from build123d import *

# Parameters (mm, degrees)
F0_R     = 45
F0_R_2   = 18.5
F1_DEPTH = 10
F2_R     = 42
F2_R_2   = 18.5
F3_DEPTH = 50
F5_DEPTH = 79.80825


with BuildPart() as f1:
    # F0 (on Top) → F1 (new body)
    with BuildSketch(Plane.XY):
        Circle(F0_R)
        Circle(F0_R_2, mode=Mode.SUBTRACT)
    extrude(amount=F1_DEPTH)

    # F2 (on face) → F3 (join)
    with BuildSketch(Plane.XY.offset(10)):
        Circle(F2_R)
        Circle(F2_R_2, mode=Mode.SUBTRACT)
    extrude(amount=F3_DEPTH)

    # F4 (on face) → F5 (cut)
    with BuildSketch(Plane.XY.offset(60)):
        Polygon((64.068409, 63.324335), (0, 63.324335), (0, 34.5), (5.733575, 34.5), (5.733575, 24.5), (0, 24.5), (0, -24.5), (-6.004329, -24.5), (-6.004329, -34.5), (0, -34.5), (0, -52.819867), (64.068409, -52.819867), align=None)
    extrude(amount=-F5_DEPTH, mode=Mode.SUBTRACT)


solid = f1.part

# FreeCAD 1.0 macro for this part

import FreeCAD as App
import Part
import Sketcher
Q = App.Units.Quantity


def add_polygon(sketch, points):
    """Adds a closed chain of lines whose ends are joined by coincident constraints."""
    first, n = sketch.GeometryCount, len(points)
    for a, b in zip(points, points[1:] + points[:1]):
        sketch.addGeometry(Part.LineSegment(App.Vector(*a, 0), App.Vector(*b, 0)), False)
    for i in range(n):
        sketch.addConstraint(Sketcher.Constraint("Coincident", first + i, 2, first + (i + 1) % n, 1))

doc = App.newDocument("Part")
params = doc.addObject("Spreadsheet::Sheet", "Params")
for row, (alias, value) in enumerate([
    ("sketch1_diameter", "90 mm"),
    ("sketch1_diameter2", "37 mm"),
    ("pad1_length", "10 mm"),
    ("sketch2_diameter", "84 mm"),
    ("sketch2_diameter2", "37 mm"),
    ("pad2_length", "50 mm"),
    ("sketch3_height", "10 mm"),
    ("sketch3_height2", "49 mm"),
    ("pocket1_length", "79.80825 mm"),
], start=1):
    params.set(f"A{row}", alias)
    params.set(f"B{row}", "=" + value)
    params.setAlias(f"B{row}", alias)

body = doc.addObject("PartDesign::Body", "Body")

sketch1 = doc.addObject("Sketcher::SketchObject", "Sketch")
body.addObject(sketch1)
sketch1.AttachmentSupport = (doc.XY_Plane, [""])
sketch1.MapMode = "FlatFace"
sketch1.addGeometry([
    Part.Circle(App.Vector(0, 0, 0), App.Vector(0, 0, 1), 45),
    Part.Circle(App.Vector(0, 0, 0), App.Vector(0, 0, 1), 18),
], False)
sketch1.addConstraint([
    Sketcher.Constraint("Coincident", 0, 3, -1, 1),
    Sketcher.Constraint("Coincident", 1, 3, -1, 1),
    Sketcher.Constraint("Diameter", 0, Q("90 mm")),
    Sketcher.Constraint("Diameter", 1, Q("37 mm")),
])
sketch1.setExpression("Constraints[2]", "Params.sketch1_diameter")
sketch1.setExpression("Constraints[3]", "Params.sketch1_diameter2")
pad1 = doc.addObject("PartDesign::Pad", "Pad")
body.addObject(pad1)
pad1.Profile = sketch1
pad1.setExpression("Length", "Params.pad1_length")

sketch2 = doc.addObject("Sketcher::SketchObject", "Sketch001")
body.addObject(sketch2)
sketch2.AttachmentSupport = (doc.XY_Plane, [""])
sketch2.MapMode = "FlatFace"
sketch2.AttachmentOffset = App.Placement(App.Vector(0, 0, 10), App.Rotation())
sketch2.addGeometry([
    Part.Circle(App.Vector(0, 0, 0), App.Vector(0, 0, 1), 42),
    Part.Circle(App.Vector(0, 0, 0), App.Vector(0, 0, 1), 18),
], False)
sketch2.addConstraint([
    Sketcher.Constraint("Coincident", 0, 3, -1, 1),
    Sketcher.Constraint("Coincident", 1, 3, -1, 1),
    Sketcher.Constraint("Diameter", 0, Q("84 mm")),
    Sketcher.Constraint("Diameter", 1, Q("37 mm")),
])
sketch2.setExpression("Constraints[2]", "Params.sketch2_diameter")
sketch2.setExpression("Constraints[3]", "Params.sketch2_diameter2")
pad2 = doc.addObject("PartDesign::Pad", "Pad001")
body.addObject(pad2)
pad2.Profile = sketch2
pad2.setExpression("Length", "Params.pad2_length")

sketch3 = doc.addObject("Sketcher::SketchObject", "Sketch002")
body.addObject(sketch3)
sketch3.AttachmentSupport = (doc.XY_Plane, [""])
sketch3.MapMode = "FlatFace"
sketch3.AttachmentOffset = App.Placement(App.Vector(0, 0, 60), App.Rotation())
add_polygon(sketch3, [(64, 63), (0, 63), (0, 34), (6, 34), (6, 24), (0, 24), (0, -24), (-6, -24), (-6, -34), (0, -34), (0, -53), (64, -53)])
sketch3.addConstraint([
    Sketcher.Constraint("Horizontal", 0),
    Sketcher.Constraint("Vertical", 1),
    Sketcher.Constraint("Horizontal", 2),
    Sketcher.Constraint("Vertical", 3),
    Sketcher.Constraint("Horizontal", 4),
    Sketcher.Constraint("Vertical", 5),
    Sketcher.Constraint("Horizontal", 6),
    Sketcher.Constraint("Vertical", 7),
    Sketcher.Constraint("Horizontal", 8),
    Sketcher.Constraint("Vertical", 9),
    Sketcher.Constraint("Horizontal", 10),
    Sketcher.Constraint("Vertical", 11),
    Sketcher.Constraint("Symmetric", 4, 2, 5, 2, -1, 1),
    Sketcher.Constraint("Symmetric", 1, 2, 8, 2, -1, 1),
    Sketcher.Constraint("PointOnObject", 0, 2, -2),
    Sketcher.Constraint("DistanceY", 3, 2, 3, 1, Q("10 mm")),
    Sketcher.Constraint("DistanceY", 5, 2, 5, 1, Q("49 mm")),
    Sketcher.Constraint("DistanceX", 0, 2, 0, 1, Q("64.068409 mm")),
    Sketcher.Constraint("DistanceX", 6, 2, 6, 1, Q("6.004329 mm")),
    Sketcher.Constraint("DistanceX", 2, 1, 2, 2, Q("5.733575 mm")),
    Sketcher.Constraint("DistanceY", 1, 2, 1, 1, Q("28.824335 mm")),
    Sketcher.Constraint("DistanceY", 9, 2, 9, 1, Q("18.319867 mm")),
])
sketch3.setExpression("Constraints[27]", "Params.sketch3_height")
sketch3.setExpression("Constraints[28]", "Params.sketch3_height2")
pocket1 = doc.addObject("PartDesign::Pocket", "Pocket")
body.addObject(pocket1)
pocket1.Profile = sketch3
pocket1.setExpression("Length", "Params.pocket1_length")

doc.recompute()
